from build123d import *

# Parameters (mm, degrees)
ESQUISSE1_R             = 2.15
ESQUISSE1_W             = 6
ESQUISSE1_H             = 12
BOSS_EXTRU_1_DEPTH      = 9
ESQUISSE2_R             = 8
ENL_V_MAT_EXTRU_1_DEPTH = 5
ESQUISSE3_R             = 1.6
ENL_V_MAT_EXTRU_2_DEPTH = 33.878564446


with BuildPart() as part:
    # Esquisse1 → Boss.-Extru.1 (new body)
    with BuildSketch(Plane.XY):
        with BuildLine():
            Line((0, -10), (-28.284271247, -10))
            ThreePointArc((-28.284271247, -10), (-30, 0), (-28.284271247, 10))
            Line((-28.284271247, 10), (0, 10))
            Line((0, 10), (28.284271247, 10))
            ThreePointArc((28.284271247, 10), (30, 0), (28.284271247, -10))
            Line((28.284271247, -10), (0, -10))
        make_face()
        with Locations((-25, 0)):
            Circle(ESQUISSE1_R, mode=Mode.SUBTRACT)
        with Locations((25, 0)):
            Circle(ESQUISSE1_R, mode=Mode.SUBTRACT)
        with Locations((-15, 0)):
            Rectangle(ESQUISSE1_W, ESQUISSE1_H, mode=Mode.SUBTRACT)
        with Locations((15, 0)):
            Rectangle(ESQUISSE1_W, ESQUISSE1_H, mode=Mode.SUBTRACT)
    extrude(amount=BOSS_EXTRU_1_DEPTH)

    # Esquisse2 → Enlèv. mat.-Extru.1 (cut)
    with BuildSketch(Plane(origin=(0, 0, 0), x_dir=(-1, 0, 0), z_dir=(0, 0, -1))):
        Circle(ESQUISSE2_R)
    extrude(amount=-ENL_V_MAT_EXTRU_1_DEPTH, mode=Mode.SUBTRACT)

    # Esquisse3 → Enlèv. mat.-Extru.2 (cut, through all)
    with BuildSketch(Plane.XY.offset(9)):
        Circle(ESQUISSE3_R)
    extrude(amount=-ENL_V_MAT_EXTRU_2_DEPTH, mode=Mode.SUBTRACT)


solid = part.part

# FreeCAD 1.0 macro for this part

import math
import FreeCAD as App
import Part
import Sketcher
from FreeCAD import Vector
Q = App.Units.Quantity

doc = App.newDocument("Part")
body = doc.addObject("PartDesign::Body", "Body")

sketch1 = doc.addObject("Sketcher::SketchObject", "Sketch")
body.addObject(sketch1)
sketch1.AttachmentSupport = (doc.XY_Plane, [""])
sketch1.MapMode = "FlatFace"
sketch1.addGeometry(Part.ArcOfCircle(Part.Circle(Vector(0, 0, 0), Vector(0, 0, 1), 30), math.radians(161), math.radians(199)), False)
sketch1.addGeometry(Part.LineSegment(Vector(-28.3, -10, 0), Vector(28.3, -10, 0)), False)
sketch1.addGeometry(Part.ArcOfCircle(Part.Circle(Vector(0, 0, 0), Vector(0, 0, 1), 30), math.radians(-19), math.radians(19)), False)
sketch1.addGeometry(Part.LineSegment(Vector(28.3, 10, 0), Vector(-28.3, 10, 0)), False)
sketch1.addGeometry(Part.Circle(Vector(25, 0, 0), Vector(0, 0, 1), 2.1), False)
sketch1.addGeometry(Part.LineSegment(Vector(12, -6, 0), Vector(12, 6, 0)), False)
sketch1.addGeometry(Part.LineSegment(Vector(12, 6, 0), Vector(18, 6, 0)), False)
sketch1.addGeometry(Part.LineSegment(Vector(18, 6, 0), Vector(18, -6, 0)), False)
sketch1.addGeometry(Part.LineSegment(Vector(18, -6, 0), Vector(12, -6, 0)), False)
sketch1.addGeometry(Part.LineSegment(Vector(-18, -6, 0), Vector(-18, 6, 0)), False)
sketch1.addGeometry(Part.LineSegment(Vector(-18, 6, 0), Vector(-12, 6, 0)), False)
sketch1.addGeometry(Part.LineSegment(Vector(-12, 6, 0), Vector(-12, -6, 0)), False)
sketch1.addGeometry(Part.LineSegment(Vector(-12, -6, 0), Vector(-18, -6, 0)), False)
sketch1.addGeometry(Part.Circle(Vector(-25, 0, 0), Vector(0, 0, 1), 2.1), False)
sketch1.addConstraint(Sketcher.Constraint("Coincident", 0, 2, 1, 1))
sketch1.addConstraint(Sketcher.Constraint("Coincident", 1, 2, 2, 1))
sketch1.addConstraint(Sketcher.Constraint("Coincident", 2, 2, 3, 1))
sketch1.addConstraint(Sketcher.Constraint("Coincident", 3, 2, 0, 1))
sketch1.addConstraint(Sketcher.Constraint("Coincident", 5, 2, 6, 1))
sketch1.addConstraint(Sketcher.Constraint("Coincident", 6, 2, 7, 1))
sketch1.addConstraint(Sketcher.Constraint("Coincident", 7, 2, 8, 1))
sketch1.addConstraint(Sketcher.Constraint("Coincident", 8, 2, 5, 1))
sketch1.addConstraint(Sketcher.Constraint("Coincident", 9, 2, 10, 1))
sketch1.addConstraint(Sketcher.Constraint("Coincident", 10, 2, 11, 1))
sketch1.addConstraint(Sketcher.Constraint("Coincident", 11, 2, 12, 1))
sketch1.addConstraint(Sketcher.Constraint("Coincident", 12, 2, 9, 1))
sketch1.addConstraint(Sketcher.Constraint("Horizontal", 1))
sketch1.addConstraint(Sketcher.Constraint("Horizontal", 3))
sketch1.addConstraint(Sketcher.Constraint("Vertical", 5))
sketch1.addConstraint(Sketcher.Constraint("Horizontal", 6))
sketch1.addConstraint(Sketcher.Constraint("Vertical", 7))
sketch1.addConstraint(Sketcher.Constraint("Horizontal", 8))
sketch1.addConstraint(Sketcher.Constraint("Vertical", 9))
sketch1.addConstraint(Sketcher.Constraint("Horizontal", 10))
sketch1.addConstraint(Sketcher.Constraint("Vertical", 11))
sketch1.addConstraint(Sketcher.Constraint("Horizontal", 12))
sketch1.addConstraint(Sketcher.Constraint("Coincident", 0, 3, -1, 1))
sketch1.addConstraint(Sketcher.Constraint("Coincident", 2, 3, -1, 1))
sketch1.addConstraint(Sketcher.Constraint("Equal", 0, 2))
sketch1.addConstraint(Sketcher.Constraint("Equal", 4, 13))
sketch1.addConstraint(Sketcher.Constraint("Symmetric", 4, 3, 13, 3, -1, 1))
sketch1.addConstraint(Sketcher.Constraint("Symmetric", 7, 2, 9, 2, -1, 1))
sketch1.addConstraint(Sketcher.Constraint("Symmetric", 5, 2, 11, 2, -1, 1))
sketch1.addConstraint(Sketcher.Constraint("PointOnObject", 4, 3, -1))
sketch1.addConstraint(Sketcher.Constraint("Horizontal", 6, 2, 9, 2))
sketch1.addConstraint(Sketcher.Constraint("Vertical", 1, 2, 2, 2))
sketch1.addConstraint(Sketcher.Constraint("Radius", 0, Q("30 mm")))
sketch1.addConstraint(Sketcher.Constraint("Diameter", 4, Q("4.3 mm")))
sketch1.addConstraint(Sketcher.Constraint("DistanceX", 6, 1, 6, 2, Q("6 mm")))
sketch1.addConstraint(Sketcher.Constraint("DistanceY", 5, 1, 5, 2, Q("12 mm")))
sketch1.addConstraint(Sketcher.Constraint("DistanceX", -1, 1, 4, 3, Q("25 mm")))
sketch1.addConstraint(Sketcher.Constraint("DistanceY", 0, 2, -1, 1, Q("10 mm")))
sketch1.addConstraint(Sketcher.Constraint("DistanceX", -1, 1, 5, 2, Q("12 mm")))
pad1 = doc.addObject("PartDesign::Pad", "Pad")
body.addObject(pad1)
pad1.Profile = sketch1
pad1.Length = 9

sketch2 = doc.addObject("Sketcher::SketchObject", "Sketch001")
body.addObject(sketch2)
sketch2.AttachmentSupport = (doc.XY_Plane, [""])
sketch2.MapMode = "FlatFace"
sketch2.addGeometry(Part.Circle(Vector(0, 0, 0), Vector(0, 0, 1), 8), False)
sketch2.addConstraint(Sketcher.Constraint("Coincident", 0, 3, -1, 1))
sketch2.addConstraint(Sketcher.Constraint("Diameter", 0, Q("16 mm")))
pocket1 = doc.addObject("PartDesign::Pocket", "Pocket")
body.addObject(pocket1)
pocket1.Profile = sketch2
pocket1.Length = 5
pocket1.Reversed = True

sketch3 = doc.addObject("Sketcher::SketchObject", "Sketch002")
body.addObject(sketch3)
sketch3.AttachmentSupport = (doc.XY_Plane, [""])
sketch3.MapMode = "FlatFace"
sketch3.AttachmentOffset = App.Placement(Vector(0, 0, 9), App.Rotation())
sketch3.addGeometry(Part.Circle(Vector(0, 0, 0), Vector(0, 0, 1), 1.6), False)
sketch3.addConstraint(Sketcher.Constraint("Coincident", 0, 3, -1, 1))
sketch3.addConstraint(Sketcher.Constraint("Diameter", 0, Q("3.2 mm")))
pocket2 = doc.addObject("PartDesign::Pocket", "Pocket001")
body.addObject(pocket2)
pocket2.Profile = sketch3
pocket2.Type = "ThroughAll"

doc.recompute()
